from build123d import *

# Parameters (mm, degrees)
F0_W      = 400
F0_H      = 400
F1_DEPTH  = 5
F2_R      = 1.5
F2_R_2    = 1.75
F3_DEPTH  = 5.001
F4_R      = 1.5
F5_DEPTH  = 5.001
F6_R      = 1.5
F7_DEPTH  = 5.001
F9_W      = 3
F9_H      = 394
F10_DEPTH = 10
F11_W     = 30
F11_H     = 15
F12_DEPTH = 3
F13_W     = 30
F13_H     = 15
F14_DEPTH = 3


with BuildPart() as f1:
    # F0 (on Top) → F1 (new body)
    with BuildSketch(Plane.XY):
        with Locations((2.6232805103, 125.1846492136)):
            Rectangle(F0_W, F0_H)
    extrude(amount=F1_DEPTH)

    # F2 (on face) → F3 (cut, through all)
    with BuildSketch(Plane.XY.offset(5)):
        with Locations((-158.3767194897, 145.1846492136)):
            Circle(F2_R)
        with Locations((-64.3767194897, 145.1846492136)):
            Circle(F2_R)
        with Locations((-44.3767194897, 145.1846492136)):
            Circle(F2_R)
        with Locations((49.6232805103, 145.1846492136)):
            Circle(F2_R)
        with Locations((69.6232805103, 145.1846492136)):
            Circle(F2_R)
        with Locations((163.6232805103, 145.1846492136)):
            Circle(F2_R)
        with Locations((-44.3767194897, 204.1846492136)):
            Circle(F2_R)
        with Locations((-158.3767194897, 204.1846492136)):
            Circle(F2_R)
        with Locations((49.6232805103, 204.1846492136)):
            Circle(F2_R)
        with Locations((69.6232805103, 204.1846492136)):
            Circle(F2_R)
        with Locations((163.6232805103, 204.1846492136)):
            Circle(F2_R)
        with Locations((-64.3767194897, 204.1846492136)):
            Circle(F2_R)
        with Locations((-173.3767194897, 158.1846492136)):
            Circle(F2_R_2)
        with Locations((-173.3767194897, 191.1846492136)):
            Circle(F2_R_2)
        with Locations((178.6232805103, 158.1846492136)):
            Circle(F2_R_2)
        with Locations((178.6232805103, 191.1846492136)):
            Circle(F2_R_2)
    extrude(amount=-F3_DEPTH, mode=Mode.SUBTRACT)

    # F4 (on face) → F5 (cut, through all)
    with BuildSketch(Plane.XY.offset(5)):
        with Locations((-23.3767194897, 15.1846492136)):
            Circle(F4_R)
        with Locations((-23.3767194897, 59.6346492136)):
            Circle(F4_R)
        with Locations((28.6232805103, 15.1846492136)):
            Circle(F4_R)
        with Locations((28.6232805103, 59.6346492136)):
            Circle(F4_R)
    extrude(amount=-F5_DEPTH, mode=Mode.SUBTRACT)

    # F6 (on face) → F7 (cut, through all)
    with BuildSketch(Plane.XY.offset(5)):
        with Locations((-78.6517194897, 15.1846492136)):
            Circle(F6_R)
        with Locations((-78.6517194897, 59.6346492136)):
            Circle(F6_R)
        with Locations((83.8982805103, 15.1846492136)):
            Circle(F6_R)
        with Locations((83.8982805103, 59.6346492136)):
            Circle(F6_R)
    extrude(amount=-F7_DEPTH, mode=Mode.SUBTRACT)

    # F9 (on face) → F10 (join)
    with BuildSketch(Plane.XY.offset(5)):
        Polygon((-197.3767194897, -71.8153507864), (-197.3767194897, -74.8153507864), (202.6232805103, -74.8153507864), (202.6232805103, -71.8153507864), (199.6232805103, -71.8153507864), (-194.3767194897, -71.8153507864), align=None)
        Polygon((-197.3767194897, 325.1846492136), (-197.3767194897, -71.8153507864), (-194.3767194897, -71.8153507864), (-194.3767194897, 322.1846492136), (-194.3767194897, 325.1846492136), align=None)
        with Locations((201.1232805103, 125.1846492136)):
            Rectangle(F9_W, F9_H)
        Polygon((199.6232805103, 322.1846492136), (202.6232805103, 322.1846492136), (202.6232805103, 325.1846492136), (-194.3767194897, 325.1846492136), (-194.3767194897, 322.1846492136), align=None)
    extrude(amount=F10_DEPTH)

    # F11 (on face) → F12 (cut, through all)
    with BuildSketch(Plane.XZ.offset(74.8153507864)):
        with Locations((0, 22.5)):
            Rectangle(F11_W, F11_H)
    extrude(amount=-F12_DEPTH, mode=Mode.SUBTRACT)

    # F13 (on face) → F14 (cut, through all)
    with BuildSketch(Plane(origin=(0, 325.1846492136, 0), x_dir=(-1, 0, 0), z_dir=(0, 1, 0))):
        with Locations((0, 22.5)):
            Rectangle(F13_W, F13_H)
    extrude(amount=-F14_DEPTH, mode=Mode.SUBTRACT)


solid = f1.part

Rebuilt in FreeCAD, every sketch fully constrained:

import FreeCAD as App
import Part
import Sketcher

V = App.Vector

doc = App.newDocument("Part")
body = doc.addObject("PartDesign::Body", "Body")

sketch1 = doc.addObject("Sketcher::SketchObject", "Sketch")
body.addObject(sketch1)
sketch1.AttachmentSupport = (doc.XY_Plane, [""])
sketch1.MapMode = "FlatFace"
sketch1.addGeometry(Part.LineSegment(V(-197, 325, 0), V(-197, -75, 0)), False)
sketch1.addGeometry(Part.LineSegment(V(-197, -75, 0), V(203, -75, 0)), False)
sketch1.addGeometry(Part.LineSegment(V(203, -75, 0), V(203, 325, 0)), False)
sketch1.addGeometry(Part.LineSegment(V(203, 325, 0), V(-197, 325, 0)), False)
sketch1.addConstraint(Sketcher.Constraint("Coincident", 0, 2, 1, 1))
sketch1.addConstraint(Sketcher.Constraint("Coincident", 1, 2, 2, 1))
sketch1.addConstraint(Sketcher.Constraint("Coincident", 2, 2, 3, 1))
sketch1.addConstraint(Sketcher.Constraint("Coincident", 3, 2, 0, 1))
sketch1.addConstraint(Sketcher.Constraint("Vertical", 0))
sketch1.addConstraint(Sketcher.Constraint("Horizontal", 1))
sketch1.addConstraint(Sketcher.Constraint("Vertical", 2))
sketch1.addConstraint(Sketcher.Constraint("Horizontal", 3))
sketch1.addConstraint(Sketcher.Constraint("Equal", 3, 0))
sketch1.addConstraint(Sketcher.Constraint("DistanceX", 1, 1, 1, 2, 400.0))
sketch1.addConstraint(Sketcher.Constraint("DistanceX", 0, 2, -1, 1, 197.376719))
sketch1.addConstraint(Sketcher.Constraint("DistanceY", 0, 2, -1, 1, 74.815351))
pad1 = doc.addObject("PartDesign::Pad", "Pad")
body.addObject(pad1)
pad1.Profile = sketch1
pad1.Length = 5

sketch2 = doc.addObject("Sketcher::SketchObject", "Sketch001")
body.addObject(sketch2)
sketch2.AttachmentSupport = (doc.XY_Plane, [""])
sketch2.MapMode = "FlatFace"
sketch2.AttachmentOffset = App.Placement(V(0, 0, 5), App.Rotation())
sketch2.addGeometry(Part.Circle(V(-158.4, 145.2, 0), V(0, 0, 1), 1.5), False)
sketch2.addGeometry(Part.Circle(V(-64.4, 145.2, 0), V(0, 0, 1), 1.5), False)
sketch2.addGeometry(Part.Circle(V(-44.4, 145.2, 0), V(0, 0, 1), 1.5), False)
sketch2.addGeometry(Part.Circle(V(49.6, 145.2, 0), V(0, 0, 1), 1.5), False)
sketch2.addGeometry(Part.Circle(V(69.6, 145.2, 0), V(0, 0, 1), 1.5), False)
sketch2.addGeometry(Part.Circle(V(163.6, 145.2, 0), V(0, 0, 1), 1.5), False)
sketch2.addGeometry(Part.Circle(V(-44.4, 204.2, 0), V(0, 0, 1), 1.5), False)
sketch2.addGeometry(Part.Circle(V(-158.4, 204.2, 0), V(0, 0, 1), 1.5), False)
sketch2.addGeometry(Part.Circle(V(49.6, 204.2, 0), V(0, 0, 1), 1.5), False)
sketch2.addGeometry(Part.Circle(V(69.6, 204.2, 0), V(0, 0, 1), 1.5), False)
sketch2.addGeometry(Part.Circle(V(163.6, 204.2, 0), V(0, 0, 1), 1.5), False)
sketch2.addGeometry(Part.Circle(V(-64.4, 204.2, 0), V(0, 0, 1), 1.5), False)
sketch2.addGeometry(Part.Circle(V(-173.4, 158.2, 0), V(0, 0, 1), 1.8), False)
sketch2.addGeometry(Part.Circle(V(-173.4, 191.2, 0), V(0, 0, 1), 1.8), False)
sketch2.addGeometry(Part.Circle(V(178.6, 158.2, 0), V(0, 0, 1), 1.8), False)
sketch2.addGeometry(Part.Circle(V(178.6, 191.2, 0), V(0, 0, 1), 1.8), False)
sketch2.addConstraint(Sketcher.Constraint("Equal", 0, 1))
sketch2.addConstraint(Sketcher.Constraint("Equal", 1, 2))
sketch2.addConstraint(Sketcher.Constraint("Equal", 2, 3))
sketch2.addConstraint(Sketcher.Constraint("Equal", 3, 4))
sketch2.addConstraint(Sketcher.Constraint("Equal", 4, 5))
sketch2.addConstraint(Sketcher.Constraint("Equal", 5, 6))
sketch2.addConstraint(Sketcher.Constraint("Equal", 6, 7))
sketch2.addConstraint(Sketcher.Constraint("Equal", 7, 8))
sketch2.addConstraint(Sketcher.Constraint("Equal", 8, 9))
sketch2.addConstraint(Sketcher.Constraint("Equal", 9, 10))
sketch2.addConstraint(Sketcher.Constraint("Equal", 10, 11))
sketch2.addConstraint(Sketcher.Constraint("Equal", 12, 13))
sketch2.addConstraint(Sketcher.Constraint("Equal", 13, 14))
sketch2.addConstraint(Sketcher.Constraint("Equal", 14, 15))
sketch2.addConstraint(Sketcher.Constraint("Horizontal", 0, 3, 1, 3))
sketch2.addConstraint(Sketcher.Constraint("Horizontal", 1, 3, 2, 3))
sketch2.addConstraint(Sketcher.Constraint("Horizontal", 2, 3, 3, 3))
sketch2.addConstraint(Sketcher.Constraint("Horizontal", 3, 3, 4, 3))
sketch2.addConstraint(Sketcher.Constraint("Horizontal", 4, 3, 5, 3))
sketch2.addConstraint(Sketcher.Constraint("Horizontal", 6, 3, 7, 3))
sketch2.addConstraint(Sketcher.Constraint("Horizontal", 7, 3, 8, 3))
sketch2.addConstraint(Sketcher.Constraint("Horizontal", 8, 3, 9, 3))
sketch2.addConstraint(Sketcher.Constraint("Horizontal", 9, 3, 10, 3))
sketch2.addConstraint(Sketcher.Constraint("Horizontal", 10, 3, 11, 3))
sketch2.addConstraint(Sketcher.Constraint("Horizontal", 12, 3, 14, 3))
sketch2.addConstraint(Sketcher.Constraint("Horizontal", 13, 3, 15, 3))
sketch2.addConstraint(Sketcher.Constraint("Vertical", 2, 3, 6, 3))
sketch2.addConstraint(Sketcher.Constraint("Vertical", 0, 3, 7, 3))
sketch2.addConstraint(Sketcher.Constraint("Vertical", 3, 3, 8, 3))
sketch2.addConstraint(Sketcher.Constraint("Vertical", 4, 3, 9, 3))
sketch2.addConstraint(Sketcher.Constraint("Vertical", 5, 3, 10, 3))
sketch2.addConstraint(Sketcher.Constraint("Vertical", 1, 3, 11, 3))
sketch2.addConstraint(Sketcher.Constraint("Vertical", 12, 3, 13, 3))
sketch2.addConstraint(Sketcher.Constraint("Vertical", 14, 3, 15, 3))
sketch2.addConstraint(Sketcher.Constraint("Diameter", 0, 3.0))
sketch2.addConstraint(Sketcher.Constraint("Diameter", 12, 3.5))
sketch2.addConstraint(Sketcher.Constraint("DistanceX", 0, 3, 1, 3, 94.0))
sketch2.addConstraint(Sketcher.Constraint("DistanceX", 1, 3, 2, 3, 20.0))
sketch2.addConstraint(Sketcher.Constraint("DistanceX", 2, 3, 3, 3, 94.0))
sketch2.addConstraint(Sketcher.Constraint("DistanceX", 3, 3, 4, 3, 20.0))
sketch2.addConstraint(Sketcher.Constraint("DistanceX", 4, 3, 5, 3, 94.0))
sketch2.addConstraint(Sketcher.Constraint("DistanceY", 2, 3, 6, 3, 59.0))
sketch2.addConstraint(Sketcher.Constraint("DistanceX", 12, 3, 0, 3, 15.0))
sketch2.addConstraint(Sketcher.Constraint("DistanceY", 0, 3, 12, 3, 13.0))
sketch2.addConstraint(Sketcher.Constraint("DistanceY", 13, 3, 7, 3, 13.0))
sketch2.addConstraint(Sketcher.Constraint("DistanceX", 5, 3, 14, 3, 15.0))
sketch2.addConstraint(Sketcher.Constraint("DistanceX", 0, 3, -1, 1, 158.376719))
sketch2.addConstraint(Sketcher.Constraint("DistanceY", -1, 1, 0, 3, 145.184649))
pocket1 = doc.addObject("PartDesign::Pocket", "Pocket")
body.addObject(pocket1)
pocket1.Profile = sketch2
pocket1.Type = "ThroughAll"

sketch3 = doc.addObject("Sketcher::SketchObject", "Sketch002")
body.addObject(sketch3)
sketch3.AttachmentSupport = (doc.XY_Plane, [""])
sketch3.MapMode = "FlatFace"
sketch3.AttachmentOffset = App.Placement(V(0, 0, 5), App.Rotation())
sketch3.addGeometry(Part.Circle(V(-23.4, 15.2, 0), V(0, 0, 1), 1.5), False)
sketch3.addGeometry(Part.Circle(V(-23.4, 59.6, 0), V(0, 0, 1), 1.5), False)
sketch3.addGeometry(Part.Circle(V(28.6, 15.2, 0), V(0, 0, 1), 1.5), False)
sketch3.addGeometry(Part.Circle(V(28.6, 59.6, 0), V(0, 0, 1), 1.5), False)
sketch3.addConstraint(Sketcher.Constraint("Equal", 0, 1))
sketch3.addConstraint(Sketcher.Constraint("Equal", 1, 2))
sketch3.addConstraint(Sketcher.Constraint("Equal", 2, 3))
sketch3.addConstraint(Sketcher.Constraint("Horizontal", 0, 3, 2, 3))
sketch3.addConstraint(Sketcher.Constraint("Horizontal", 1, 3, 3, 3))
sketch3.addConstraint(Sketcher.Constraint("Vertical", 0, 3, 1, 3))
sketch3.addConstraint(Sketcher.Constraint("Vertical", 2, 3, 3, 3))
sketch3.addConstraint(Sketcher.Constraint("Diameter", 0, 3.0))
sketch3.addConstraint(Sketcher.Constraint("DistanceX", 0, 3, 2, 3, 52.0))
sketch3.addConstraint(Sketcher.Constraint("DistanceY", 0, 3, 1, 3, 44.45))
sketch3.addConstraint(Sketcher.Constraint("DistanceX", 0, 3, -1, 1, 23.376719))
sketch3.addConstraint(Sketcher.Constraint("DistanceY", -1, 1, 0, 3, 15.184649))
pocket2 = doc.addObject("PartDesign::Pocket", "Pocket001")
body.addObject(pocket2)
pocket2.Profile = sketch3
pocket2.Type = "ThroughAll"

sketch4 = doc.addObject("Sketcher::SketchObject", "Sketch003")
body.addObject(sketch4)
sketch4.AttachmentSupport = (doc.XY_Plane, [""])
sketch4.MapMode = "FlatFace"
sketch4.AttachmentOffset = App.Placement(V(0, 0, 5), App.Rotation())
sketch4.addGeometry(Part.Circle(V(-78.7, 15.2, 0), V(0, 0, 1), 1.5), False)
sketch4.addGeometry(Part.Circle(V(-78.7, 59.6, 0), V(0, 0, 1), 1.5), False)
sketch4.addGeometry(Part.Circle(V(83.9, 15.2, 0), V(0, 0, 1), 1.5), False)
sketch4.addGeometry(Part.Circle(V(83.9, 59.6, 0), V(0, 0, 1), 1.5), False)
sketch4.addConstraint(Sketcher.Constraint("Equal", 0, 1))
sketch4.addConstraint(Sketcher.Constraint("Equal", 1, 2))
sketch4.addConstraint(Sketcher.Constraint("Equal", 2, 3))
sketch4.addConstraint(Sketcher.Constraint("Horizontal", 0, 3, 2, 3))
sketch4.addConstraint(Sketcher.Constraint("Horizontal", 1, 3, 3, 3))
sketch4.addConstraint(Sketcher.Constraint("Vertical", 0, 3, 1, 3))
sketch4.addConstraint(Sketcher.Constraint("Vertical", 2, 3, 3, 3))
sketch4.addConstraint(Sketcher.Constraint("Diameter", 0, 3.0))
sketch4.addConstraint(Sketcher.Constraint("DistanceY", 0, 3, 1, 3, 44.45))
sketch4.addConstraint(Sketcher.Constraint("DistanceX", 0, 3, 2, 3, 162.55))
sketch4.addConstraint(Sketcher.Constraint("DistanceX", 0, 3, -1, 1, 78.651719))
sketch4.addConstraint(Sketcher.Constraint("DistanceY", -1, 1, 0, 3, 15.184649))
pocket3 = doc.addObject("PartDesign::Pocket", "Pocket002")
body.addObject(pocket3)
pocket3.Profile = sketch4
pocket3.Type = "ThroughAll"

sketch5 = doc.addObject("Sketcher::SketchObject", "Sketch004")
body.addObject(sketch5)
sketch5.AttachmentSupport = (doc.XY_Plane, [""])
sketch5.MapMode = "FlatFace"
sketch5.AttachmentOffset = App.Placement(V(0, 0, 5), App.Rotation())
sketch5.addGeometry(Part.LineSegment(V(-197, -75, 0), V(203, -75, 0)), False)
sketch5.addGeometry(Part.LineSegment(V(203, -75, 0), V(203, 325, 0)), False)
sketch5.addGeometry(Part.LineSegment(V(203, 325, 0), V(-197, 325, 0)), False)
sketch5.addGeometry(Part.LineSegment(V(-197, 325, 0), V(-197, -75, 0)), False)
sketch5.addGeometry(Part.LineSegment(V(200, 322, 0), V(200, -72, 0)), False)
sketch5.addGeometry(Part.LineSegment(V(200, -72, 0), V(-194, -72, 0)), False)
sketch5.addGeometry(Part.LineSegment(V(-194, -72, 0), V(-194, 322, 0)), False)
sketch5.addGeometry(Part.LineSegment(V(-194, 322, 0), V(200, 322, 0)), False)
sketch5.addConstraint(Sketcher.Constraint("Coincident", 0, 2, 1, 1))
sketch5.addConstraint(Sketcher.Constraint("Coincident", 1, 2, 2, 1))
sketch5.addConstraint(Sketcher.Constraint("Coincident", 2, 2, 3, 1))
sketch5.addConstraint(Sketcher.Constraint("Coincident", 3, 2, 0, 1))
sketch5.addConstraint(Sketcher.Constraint("Coincident", 4, 2, 5, 1))
sketch5.addConstraint(Sketcher.Constraint("Coincident", 5, 2, 6, 1))
sketch5.addConstraint(Sketcher.Constraint("Coincident", 6, 2, 7, 1))
sketch5.addConstraint(Sketcher.Constraint("Coincident", 7, 2, 4, 1))
sketch5.addConstraint(Sketcher.Constraint("Horizontal", 0))
sketch5.addConstraint(Sketcher.Constraint("Vertical", 1))
sketch5.addConstraint(Sketcher.Constraint("Horizontal", 2))
sketch5.addConstraint(Sketcher.Constraint("Vertical", 3))
sketch5.addConstraint(Sketcher.Constraint("Vertical", 4))
sketch5.addConstraint(Sketcher.Constraint("Horizontal", 5))
sketch5.addConstraint(Sketcher.Constraint("Vertical", 6))
sketch5.addConstraint(Sketcher.Constraint("Horizontal", 7))
sketch5.addConstraint(Sketcher.Constraint("Equal", 2, 1))
sketch5.addConstraint(Sketcher.Constraint("Equal", 7, 4))
sketch5.addConstraint(Sketcher.Constraint("DistanceX", 0, 1, 0, 2, 400.0))
sketch5.addConstraint(Sketcher.Constraint("DistanceX", 5, 2, 5, 1, 394.0))
sketch5.addConstraint(Sketcher.Constraint("DistanceX", 4, 2, 0, 2, 3.0))
sketch5.addConstraint(Sketcher.Constraint("DistanceY", 0, 2, 4, 2, 3.0))
sketch5.addConstraint(Sketcher.Constraint("DistanceX", -1, 1, 0, 2, 202.623281))
sketch5.addConstraint(Sketcher.Constraint("DistanceY", 0, 2, -1, 1, 74.815351))
pad2 = doc.addObject("PartDesign::Pad", "Pad001")
body.addObject(pad2)
pad2.Profile = sketch5
pad2.Length = 10

sketch6 = doc.addObject("Sketcher::SketchObject", "Sketch005")
body.addObject(sketch6)
sketch6.AttachmentSupport = (doc.XZ_Plane, [""])
sketch6.MapMode = "FlatFace"
sketch6.AttachmentOffset = App.Placement(V(0, 0, 74.815351), App.Rotation())
sketch6.addGeometry(Part.LineSegment(V(-15, 30, 0), V(-15, 15, 0)), False)
sketch6.addGeometry(Part.LineSegment(V(-15, 15, 0), V(15, 15, 0)), False)
sketch6.addGeometry(Part.LineSegment(V(15, 15, 0), V(15, 30, 0)), False)
sketch6.addGeometry(Part.LineSegment(V(15, 30, 0), V(-15, 30, 0)), False)
sketch6.addConstraint(Sketcher.Constraint("Coincident", 0, 2, 1, 1))
sketch6.addConstraint(Sketcher.Constraint("Coincident", 1, 2, 2, 1))
sketch6.addConstraint(Sketcher.Constraint("Coincident", 2, 2, 3, 1))
sketch6.addConstraint(Sketcher.Constraint("Coincident", 3, 2, 0, 1))
sketch6.addConstraint(Sketcher.Constraint("Vertical", 0))
sketch6.addConstraint(Sketcher.Constraint("Horizontal", 1))
sketch6.addConstraint(Sketcher.Constraint("Vertical", 2))
sketch6.addConstraint(Sketcher.Constraint("Horizontal", 3))
sketch6.addConstraint(Sketcher.Constraint("DistanceX", 1, 1, 1, 2, 30.0))
sketch6.addConstraint(Sketcher.Constraint("DistanceY", 0, 2, 0, 1, 15.0))
sketch6.addConstraint(Sketcher.Constraint("DistanceX", 0, 2, -1, 1, 15.0))
sketch6.addConstraint(Sketcher.Constraint("DistanceY", -1, 1, 0, 2, 15.0))
pocket4 = doc.addObject("PartDesign::Pocket", "Pocket003")
body.addObject(pocket4)
pocket4.Profile = sketch6
pocket4.Type = "ThroughAll"

sketch7 = doc.addObject("Sketcher::SketchObject", "Sketch006")
body.addObject(sketch7)
sketch7.AttachmentSupport = (doc.XZ_Plane, [""])
sketch7.MapMode = "FlatFace"
sketch7.AttachmentOffset = App.Placement(V(0, 0, -325.184649), App.Rotation())
sketch7.addGeometry(Part.LineSegment(V(15, 30, 0), V(15, 15, 0)), False)
sketch7.addGeometry(Part.LineSegment(V(15, 15, 0), V(-15, 15, 0)), False)
sketch7.addGeometry(Part.LineSegment(V(-15, 15, 0), V(-15, 30, 0)), False)
sketch7.addGeometry(Part.LineSegment(V(-15, 30, 0), V(15, 30, 0)), False)
sketch7.addConstraint(Sketcher.Constraint("Coincident", 0, 2, 1, 1))
sketch7.addConstraint(Sketcher.Constraint("Coincident", 1, 2, 2, 1))
sketch7.addConstraint(Sketcher.Constraint("Coincident", 2, 2, 3, 1))
sketch7.addConstraint(Sketcher.Constraint("Coincident", 3, 2, 0, 1))
sketch7.addConstraint(Sketcher.Constraint("Vertical", 0))
sketch7.addConstraint(Sketcher.Constraint("Horizontal", 1))
sketch7.addConstraint(Sketcher.Constraint("Vertical", 2))
sketch7.addConstraint(Sketcher.Constraint("Horizontal", 3))
sketch7.addConstraint(Sketcher.Constraint("DistanceX", 1, 2, 1, 1, 30.0))
sketch7.addConstraint(Sketcher.Constraint("DistanceY", 0, 2, 0, 1, 15.0))
sketch7.addConstraint(Sketcher.Constraint("DistanceX", -1, 1, 0, 2, 15.0))
sketch7.addConstraint(Sketcher.Constraint("DistanceY", -1, 1, 0, 2, 15.0))
pocket5 = doc.addObject("PartDesign::Pocket", "Pocket004")
body.addObject(pocket5)
pocket5.Profile = sketch7
pocket5.Type = "ThroughAll"
pocket5.Reversed = True

doc.recompute()
